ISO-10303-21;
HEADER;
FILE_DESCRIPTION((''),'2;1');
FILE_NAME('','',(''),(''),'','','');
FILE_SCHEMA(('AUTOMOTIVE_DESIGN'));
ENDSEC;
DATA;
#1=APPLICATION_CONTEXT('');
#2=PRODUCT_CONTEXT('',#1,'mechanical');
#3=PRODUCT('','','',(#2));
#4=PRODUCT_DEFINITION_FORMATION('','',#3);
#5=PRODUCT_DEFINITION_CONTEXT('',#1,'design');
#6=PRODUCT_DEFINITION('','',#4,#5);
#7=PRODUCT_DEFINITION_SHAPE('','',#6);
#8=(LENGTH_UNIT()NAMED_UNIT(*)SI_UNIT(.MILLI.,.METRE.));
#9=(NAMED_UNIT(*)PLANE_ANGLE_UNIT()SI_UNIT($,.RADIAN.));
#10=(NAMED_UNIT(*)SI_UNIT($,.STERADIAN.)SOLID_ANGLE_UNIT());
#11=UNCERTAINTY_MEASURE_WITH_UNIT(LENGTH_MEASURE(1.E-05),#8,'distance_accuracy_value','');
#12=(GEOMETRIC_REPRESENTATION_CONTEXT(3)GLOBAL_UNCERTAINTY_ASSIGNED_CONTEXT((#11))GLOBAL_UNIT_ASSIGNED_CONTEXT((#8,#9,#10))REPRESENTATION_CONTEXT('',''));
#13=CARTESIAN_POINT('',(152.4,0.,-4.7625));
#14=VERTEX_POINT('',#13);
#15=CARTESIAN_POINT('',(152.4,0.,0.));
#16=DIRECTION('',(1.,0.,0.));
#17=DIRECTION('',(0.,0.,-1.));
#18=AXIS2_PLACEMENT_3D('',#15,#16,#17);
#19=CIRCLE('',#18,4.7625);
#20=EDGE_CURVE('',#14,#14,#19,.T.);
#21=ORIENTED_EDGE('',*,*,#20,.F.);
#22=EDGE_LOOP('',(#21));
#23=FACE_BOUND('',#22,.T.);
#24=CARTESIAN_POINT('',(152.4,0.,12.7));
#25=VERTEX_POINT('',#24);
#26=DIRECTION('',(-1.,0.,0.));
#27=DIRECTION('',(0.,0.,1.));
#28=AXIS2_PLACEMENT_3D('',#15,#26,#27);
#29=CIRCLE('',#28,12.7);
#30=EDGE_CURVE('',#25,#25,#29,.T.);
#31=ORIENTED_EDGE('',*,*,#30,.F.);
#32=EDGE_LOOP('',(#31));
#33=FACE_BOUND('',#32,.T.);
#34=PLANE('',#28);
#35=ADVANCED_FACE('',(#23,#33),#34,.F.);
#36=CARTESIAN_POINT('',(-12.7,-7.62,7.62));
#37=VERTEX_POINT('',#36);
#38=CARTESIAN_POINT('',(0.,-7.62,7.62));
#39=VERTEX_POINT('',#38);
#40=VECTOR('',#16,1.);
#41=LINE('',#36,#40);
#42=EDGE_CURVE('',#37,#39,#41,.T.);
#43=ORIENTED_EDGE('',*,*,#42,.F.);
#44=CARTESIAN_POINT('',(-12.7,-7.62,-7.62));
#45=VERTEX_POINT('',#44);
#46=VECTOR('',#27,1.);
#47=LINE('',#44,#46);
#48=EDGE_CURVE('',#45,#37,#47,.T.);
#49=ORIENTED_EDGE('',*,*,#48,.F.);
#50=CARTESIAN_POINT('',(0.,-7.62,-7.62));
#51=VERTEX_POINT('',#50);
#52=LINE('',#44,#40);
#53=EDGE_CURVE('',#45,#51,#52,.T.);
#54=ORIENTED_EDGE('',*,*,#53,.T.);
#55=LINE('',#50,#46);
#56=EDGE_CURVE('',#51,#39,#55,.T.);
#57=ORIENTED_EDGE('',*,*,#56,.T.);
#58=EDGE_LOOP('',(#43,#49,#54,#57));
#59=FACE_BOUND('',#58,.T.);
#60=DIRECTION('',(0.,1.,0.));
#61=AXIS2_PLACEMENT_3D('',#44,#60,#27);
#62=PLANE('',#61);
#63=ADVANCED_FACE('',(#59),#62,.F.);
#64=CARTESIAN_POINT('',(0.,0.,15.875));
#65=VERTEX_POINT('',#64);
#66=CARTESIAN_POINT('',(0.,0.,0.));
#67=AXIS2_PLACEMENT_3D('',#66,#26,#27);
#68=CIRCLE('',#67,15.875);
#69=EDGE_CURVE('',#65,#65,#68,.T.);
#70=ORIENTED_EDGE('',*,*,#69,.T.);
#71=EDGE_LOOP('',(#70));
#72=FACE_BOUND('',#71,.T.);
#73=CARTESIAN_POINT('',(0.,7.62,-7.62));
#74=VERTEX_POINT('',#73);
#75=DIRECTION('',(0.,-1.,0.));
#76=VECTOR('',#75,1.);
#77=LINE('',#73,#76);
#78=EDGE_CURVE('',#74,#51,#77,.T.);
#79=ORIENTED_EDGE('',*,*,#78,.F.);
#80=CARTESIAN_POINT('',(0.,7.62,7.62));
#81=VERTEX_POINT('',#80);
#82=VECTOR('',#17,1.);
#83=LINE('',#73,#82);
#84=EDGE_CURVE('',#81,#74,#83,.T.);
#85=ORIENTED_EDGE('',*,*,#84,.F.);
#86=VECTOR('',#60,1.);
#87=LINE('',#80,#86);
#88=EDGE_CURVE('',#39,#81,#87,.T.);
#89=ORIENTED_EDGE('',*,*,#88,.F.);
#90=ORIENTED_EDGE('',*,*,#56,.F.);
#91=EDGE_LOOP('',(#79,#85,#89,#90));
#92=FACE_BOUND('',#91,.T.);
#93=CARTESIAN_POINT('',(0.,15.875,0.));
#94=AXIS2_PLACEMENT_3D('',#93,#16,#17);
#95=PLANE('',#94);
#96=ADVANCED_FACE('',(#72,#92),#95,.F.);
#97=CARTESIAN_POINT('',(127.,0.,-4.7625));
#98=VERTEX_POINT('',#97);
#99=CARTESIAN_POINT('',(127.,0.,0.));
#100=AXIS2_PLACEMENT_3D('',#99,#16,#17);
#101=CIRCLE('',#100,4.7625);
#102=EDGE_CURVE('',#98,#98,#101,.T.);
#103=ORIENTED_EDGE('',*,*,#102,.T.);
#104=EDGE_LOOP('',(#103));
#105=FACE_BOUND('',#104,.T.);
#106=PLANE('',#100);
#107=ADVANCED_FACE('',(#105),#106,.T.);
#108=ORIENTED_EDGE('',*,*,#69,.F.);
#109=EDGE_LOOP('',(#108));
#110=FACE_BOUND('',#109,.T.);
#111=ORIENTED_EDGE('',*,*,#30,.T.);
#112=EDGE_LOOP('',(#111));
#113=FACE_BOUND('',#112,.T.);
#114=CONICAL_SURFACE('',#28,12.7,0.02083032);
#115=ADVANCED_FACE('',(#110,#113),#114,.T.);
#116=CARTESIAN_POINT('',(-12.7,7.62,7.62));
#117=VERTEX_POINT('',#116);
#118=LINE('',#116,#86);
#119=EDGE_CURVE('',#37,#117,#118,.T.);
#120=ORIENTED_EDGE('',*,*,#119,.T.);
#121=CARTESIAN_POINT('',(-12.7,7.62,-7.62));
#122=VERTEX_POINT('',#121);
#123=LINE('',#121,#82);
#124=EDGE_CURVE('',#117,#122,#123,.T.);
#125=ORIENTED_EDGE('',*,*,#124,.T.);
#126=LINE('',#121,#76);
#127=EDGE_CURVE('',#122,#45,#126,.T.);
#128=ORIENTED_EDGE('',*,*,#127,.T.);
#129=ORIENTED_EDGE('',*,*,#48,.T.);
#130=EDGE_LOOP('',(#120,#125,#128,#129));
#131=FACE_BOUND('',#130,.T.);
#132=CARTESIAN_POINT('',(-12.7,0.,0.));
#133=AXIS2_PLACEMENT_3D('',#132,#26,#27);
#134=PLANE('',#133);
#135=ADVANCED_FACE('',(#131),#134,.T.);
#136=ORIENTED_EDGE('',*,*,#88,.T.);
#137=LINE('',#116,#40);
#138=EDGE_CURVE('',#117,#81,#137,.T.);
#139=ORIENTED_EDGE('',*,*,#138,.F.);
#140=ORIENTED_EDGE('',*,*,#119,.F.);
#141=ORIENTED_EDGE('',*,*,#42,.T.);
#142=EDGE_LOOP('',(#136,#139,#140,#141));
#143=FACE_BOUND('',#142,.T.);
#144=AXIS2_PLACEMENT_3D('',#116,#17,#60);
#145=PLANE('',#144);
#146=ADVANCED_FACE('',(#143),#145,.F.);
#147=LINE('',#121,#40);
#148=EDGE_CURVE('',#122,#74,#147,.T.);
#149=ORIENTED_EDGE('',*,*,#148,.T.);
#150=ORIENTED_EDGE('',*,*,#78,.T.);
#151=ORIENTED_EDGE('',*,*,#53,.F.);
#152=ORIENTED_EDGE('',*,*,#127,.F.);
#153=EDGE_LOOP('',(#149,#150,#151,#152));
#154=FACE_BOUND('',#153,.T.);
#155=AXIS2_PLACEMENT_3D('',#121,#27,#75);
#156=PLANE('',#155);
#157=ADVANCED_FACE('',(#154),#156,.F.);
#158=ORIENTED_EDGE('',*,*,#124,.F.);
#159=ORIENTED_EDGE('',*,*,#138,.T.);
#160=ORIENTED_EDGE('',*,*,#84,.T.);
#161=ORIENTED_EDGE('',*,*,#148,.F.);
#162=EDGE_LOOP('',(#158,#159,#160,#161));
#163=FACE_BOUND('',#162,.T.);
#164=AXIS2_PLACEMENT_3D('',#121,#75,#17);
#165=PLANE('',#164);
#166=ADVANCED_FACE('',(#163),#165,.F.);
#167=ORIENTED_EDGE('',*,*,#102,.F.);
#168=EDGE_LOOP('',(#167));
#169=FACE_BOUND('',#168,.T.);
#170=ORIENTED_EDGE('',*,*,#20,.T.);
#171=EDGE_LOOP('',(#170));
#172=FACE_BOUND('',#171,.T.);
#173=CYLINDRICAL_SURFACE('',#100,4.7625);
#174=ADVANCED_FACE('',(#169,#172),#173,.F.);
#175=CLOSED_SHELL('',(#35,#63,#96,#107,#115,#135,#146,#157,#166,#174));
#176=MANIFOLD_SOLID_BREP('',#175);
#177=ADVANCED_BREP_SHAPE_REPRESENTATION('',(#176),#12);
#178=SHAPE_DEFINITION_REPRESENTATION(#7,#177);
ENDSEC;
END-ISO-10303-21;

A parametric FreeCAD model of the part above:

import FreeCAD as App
import Part
import Sketcher

V = App.Vector
Q = App.Units.Quantity


def add_polygon(sketch, points):
    """Adds a closed chain of lines whose ends are joined by coincident constraints."""
    first, n = sketch.GeometryCount, len(points)
    for a, b in zip(points, points[1:] + points[:1]):
        sketch.addGeometry(Part.LineSegment(App.Vector(*a, 0), App.Vector(*b, 0)), False)
    for i in range(n):
        sketch.addConstraint(Sketcher.Constraint("Coincident", first + i, 2, first + (i + 1) % n, 1))

doc = App.newDocument("Part")
body = doc.addObject("PartDesign::Body", "Body")

sketch1 = body.newObject("Sketcher::SketchObject", "Sketch")
sketch1.AttachmentSupport = (doc.getObject("XY_Plane"), [""])
sketch1.MapMode = "FlatFace"
add_polygon(sketch1, [(0, 0), (152, 0), (152, 13), (0, 16)])
sketch1.addConstraint([
    Sketcher.Constraint("Horizontal", 0),
    Sketcher.Constraint("Vertical", 1),
    Sketcher.Constraint("Vertical", 3),
    Sketcher.Constraint("Coincident", 3, 2, -1, 1),
    Sketcher.Constraint("DistanceX", 0, 1, 0, 2, Q("6 in")),
    Sketcher.Constraint("DistanceY", 1, 1, 1, 2, Q("0.5 in")),
    Sketcher.Constraint("DistanceY", 3, 2, 3, 1, Q("0.625 in")),
])
revolution = body.newObject("PartDesign::Revolution", "Revolution")
revolution.Profile = sketch1
revolution.ReferenceAxis = (sketch1, ["H_Axis"])
revolution.Angle = 360

sketch2 = body.newObject("Sketcher::SketchObject", "Sketch001")
sketch2.AttachmentSupport = (doc.getObject("YZ_Plane"), [""])
sketch2.MapMode = "FlatFace"
sketch2.AttachmentOffset = App.Placement(V(0, 0, 6 * 25.4), App.Rotation())
sketch2.addGeometry(Part.Circle(V(0, 0, 0), V(0, 0, 1), 4.8), False)
sketch2.addConstraint([
    Sketcher.Constraint("Coincident", 0, 3, -1, 1),
    Sketcher.Constraint("Diameter", 0, Q("0.375 in")),
])
pocket1 = body.newObject("PartDesign::Pocket", "Pocket")
pocket1.Profile = sketch2
pocket1.Length = Q("1 in")

sketch3 = body.newObject("Sketcher::SketchObject", "Sketch002")
sketch3.AttachmentSupport = (doc.getObject("YZ_Plane"), [""])
sketch3.MapMode = "FlatFace"
add_polygon(sketch3, [(8, -8), (-8, -8), (-8, 8), (8, 8)])
sketch3.addConstraint([
    Sketcher.Constraint("Horizontal", 0),
    Sketcher.Constraint("Vertical", 1),
    Sketcher.Constraint("Horizontal", 2),
    Sketcher.Constraint("Vertical", 3),
    Sketcher.Constraint("Symmetric", 0, 2, 2, 2, -1, 1),
    Sketcher.Constraint("Equal", 2, 1),
    Sketcher.Constraint("DistanceX", 0, 2, 0, 1, Q("0.6 in")),
])
pad1 = body.newObject("PartDesign::Pad", "Pad")
pad1.Profile = sketch3
pad1.Length = Q("0.5 in")
pad1.Reversed = True

doc.recompute()
